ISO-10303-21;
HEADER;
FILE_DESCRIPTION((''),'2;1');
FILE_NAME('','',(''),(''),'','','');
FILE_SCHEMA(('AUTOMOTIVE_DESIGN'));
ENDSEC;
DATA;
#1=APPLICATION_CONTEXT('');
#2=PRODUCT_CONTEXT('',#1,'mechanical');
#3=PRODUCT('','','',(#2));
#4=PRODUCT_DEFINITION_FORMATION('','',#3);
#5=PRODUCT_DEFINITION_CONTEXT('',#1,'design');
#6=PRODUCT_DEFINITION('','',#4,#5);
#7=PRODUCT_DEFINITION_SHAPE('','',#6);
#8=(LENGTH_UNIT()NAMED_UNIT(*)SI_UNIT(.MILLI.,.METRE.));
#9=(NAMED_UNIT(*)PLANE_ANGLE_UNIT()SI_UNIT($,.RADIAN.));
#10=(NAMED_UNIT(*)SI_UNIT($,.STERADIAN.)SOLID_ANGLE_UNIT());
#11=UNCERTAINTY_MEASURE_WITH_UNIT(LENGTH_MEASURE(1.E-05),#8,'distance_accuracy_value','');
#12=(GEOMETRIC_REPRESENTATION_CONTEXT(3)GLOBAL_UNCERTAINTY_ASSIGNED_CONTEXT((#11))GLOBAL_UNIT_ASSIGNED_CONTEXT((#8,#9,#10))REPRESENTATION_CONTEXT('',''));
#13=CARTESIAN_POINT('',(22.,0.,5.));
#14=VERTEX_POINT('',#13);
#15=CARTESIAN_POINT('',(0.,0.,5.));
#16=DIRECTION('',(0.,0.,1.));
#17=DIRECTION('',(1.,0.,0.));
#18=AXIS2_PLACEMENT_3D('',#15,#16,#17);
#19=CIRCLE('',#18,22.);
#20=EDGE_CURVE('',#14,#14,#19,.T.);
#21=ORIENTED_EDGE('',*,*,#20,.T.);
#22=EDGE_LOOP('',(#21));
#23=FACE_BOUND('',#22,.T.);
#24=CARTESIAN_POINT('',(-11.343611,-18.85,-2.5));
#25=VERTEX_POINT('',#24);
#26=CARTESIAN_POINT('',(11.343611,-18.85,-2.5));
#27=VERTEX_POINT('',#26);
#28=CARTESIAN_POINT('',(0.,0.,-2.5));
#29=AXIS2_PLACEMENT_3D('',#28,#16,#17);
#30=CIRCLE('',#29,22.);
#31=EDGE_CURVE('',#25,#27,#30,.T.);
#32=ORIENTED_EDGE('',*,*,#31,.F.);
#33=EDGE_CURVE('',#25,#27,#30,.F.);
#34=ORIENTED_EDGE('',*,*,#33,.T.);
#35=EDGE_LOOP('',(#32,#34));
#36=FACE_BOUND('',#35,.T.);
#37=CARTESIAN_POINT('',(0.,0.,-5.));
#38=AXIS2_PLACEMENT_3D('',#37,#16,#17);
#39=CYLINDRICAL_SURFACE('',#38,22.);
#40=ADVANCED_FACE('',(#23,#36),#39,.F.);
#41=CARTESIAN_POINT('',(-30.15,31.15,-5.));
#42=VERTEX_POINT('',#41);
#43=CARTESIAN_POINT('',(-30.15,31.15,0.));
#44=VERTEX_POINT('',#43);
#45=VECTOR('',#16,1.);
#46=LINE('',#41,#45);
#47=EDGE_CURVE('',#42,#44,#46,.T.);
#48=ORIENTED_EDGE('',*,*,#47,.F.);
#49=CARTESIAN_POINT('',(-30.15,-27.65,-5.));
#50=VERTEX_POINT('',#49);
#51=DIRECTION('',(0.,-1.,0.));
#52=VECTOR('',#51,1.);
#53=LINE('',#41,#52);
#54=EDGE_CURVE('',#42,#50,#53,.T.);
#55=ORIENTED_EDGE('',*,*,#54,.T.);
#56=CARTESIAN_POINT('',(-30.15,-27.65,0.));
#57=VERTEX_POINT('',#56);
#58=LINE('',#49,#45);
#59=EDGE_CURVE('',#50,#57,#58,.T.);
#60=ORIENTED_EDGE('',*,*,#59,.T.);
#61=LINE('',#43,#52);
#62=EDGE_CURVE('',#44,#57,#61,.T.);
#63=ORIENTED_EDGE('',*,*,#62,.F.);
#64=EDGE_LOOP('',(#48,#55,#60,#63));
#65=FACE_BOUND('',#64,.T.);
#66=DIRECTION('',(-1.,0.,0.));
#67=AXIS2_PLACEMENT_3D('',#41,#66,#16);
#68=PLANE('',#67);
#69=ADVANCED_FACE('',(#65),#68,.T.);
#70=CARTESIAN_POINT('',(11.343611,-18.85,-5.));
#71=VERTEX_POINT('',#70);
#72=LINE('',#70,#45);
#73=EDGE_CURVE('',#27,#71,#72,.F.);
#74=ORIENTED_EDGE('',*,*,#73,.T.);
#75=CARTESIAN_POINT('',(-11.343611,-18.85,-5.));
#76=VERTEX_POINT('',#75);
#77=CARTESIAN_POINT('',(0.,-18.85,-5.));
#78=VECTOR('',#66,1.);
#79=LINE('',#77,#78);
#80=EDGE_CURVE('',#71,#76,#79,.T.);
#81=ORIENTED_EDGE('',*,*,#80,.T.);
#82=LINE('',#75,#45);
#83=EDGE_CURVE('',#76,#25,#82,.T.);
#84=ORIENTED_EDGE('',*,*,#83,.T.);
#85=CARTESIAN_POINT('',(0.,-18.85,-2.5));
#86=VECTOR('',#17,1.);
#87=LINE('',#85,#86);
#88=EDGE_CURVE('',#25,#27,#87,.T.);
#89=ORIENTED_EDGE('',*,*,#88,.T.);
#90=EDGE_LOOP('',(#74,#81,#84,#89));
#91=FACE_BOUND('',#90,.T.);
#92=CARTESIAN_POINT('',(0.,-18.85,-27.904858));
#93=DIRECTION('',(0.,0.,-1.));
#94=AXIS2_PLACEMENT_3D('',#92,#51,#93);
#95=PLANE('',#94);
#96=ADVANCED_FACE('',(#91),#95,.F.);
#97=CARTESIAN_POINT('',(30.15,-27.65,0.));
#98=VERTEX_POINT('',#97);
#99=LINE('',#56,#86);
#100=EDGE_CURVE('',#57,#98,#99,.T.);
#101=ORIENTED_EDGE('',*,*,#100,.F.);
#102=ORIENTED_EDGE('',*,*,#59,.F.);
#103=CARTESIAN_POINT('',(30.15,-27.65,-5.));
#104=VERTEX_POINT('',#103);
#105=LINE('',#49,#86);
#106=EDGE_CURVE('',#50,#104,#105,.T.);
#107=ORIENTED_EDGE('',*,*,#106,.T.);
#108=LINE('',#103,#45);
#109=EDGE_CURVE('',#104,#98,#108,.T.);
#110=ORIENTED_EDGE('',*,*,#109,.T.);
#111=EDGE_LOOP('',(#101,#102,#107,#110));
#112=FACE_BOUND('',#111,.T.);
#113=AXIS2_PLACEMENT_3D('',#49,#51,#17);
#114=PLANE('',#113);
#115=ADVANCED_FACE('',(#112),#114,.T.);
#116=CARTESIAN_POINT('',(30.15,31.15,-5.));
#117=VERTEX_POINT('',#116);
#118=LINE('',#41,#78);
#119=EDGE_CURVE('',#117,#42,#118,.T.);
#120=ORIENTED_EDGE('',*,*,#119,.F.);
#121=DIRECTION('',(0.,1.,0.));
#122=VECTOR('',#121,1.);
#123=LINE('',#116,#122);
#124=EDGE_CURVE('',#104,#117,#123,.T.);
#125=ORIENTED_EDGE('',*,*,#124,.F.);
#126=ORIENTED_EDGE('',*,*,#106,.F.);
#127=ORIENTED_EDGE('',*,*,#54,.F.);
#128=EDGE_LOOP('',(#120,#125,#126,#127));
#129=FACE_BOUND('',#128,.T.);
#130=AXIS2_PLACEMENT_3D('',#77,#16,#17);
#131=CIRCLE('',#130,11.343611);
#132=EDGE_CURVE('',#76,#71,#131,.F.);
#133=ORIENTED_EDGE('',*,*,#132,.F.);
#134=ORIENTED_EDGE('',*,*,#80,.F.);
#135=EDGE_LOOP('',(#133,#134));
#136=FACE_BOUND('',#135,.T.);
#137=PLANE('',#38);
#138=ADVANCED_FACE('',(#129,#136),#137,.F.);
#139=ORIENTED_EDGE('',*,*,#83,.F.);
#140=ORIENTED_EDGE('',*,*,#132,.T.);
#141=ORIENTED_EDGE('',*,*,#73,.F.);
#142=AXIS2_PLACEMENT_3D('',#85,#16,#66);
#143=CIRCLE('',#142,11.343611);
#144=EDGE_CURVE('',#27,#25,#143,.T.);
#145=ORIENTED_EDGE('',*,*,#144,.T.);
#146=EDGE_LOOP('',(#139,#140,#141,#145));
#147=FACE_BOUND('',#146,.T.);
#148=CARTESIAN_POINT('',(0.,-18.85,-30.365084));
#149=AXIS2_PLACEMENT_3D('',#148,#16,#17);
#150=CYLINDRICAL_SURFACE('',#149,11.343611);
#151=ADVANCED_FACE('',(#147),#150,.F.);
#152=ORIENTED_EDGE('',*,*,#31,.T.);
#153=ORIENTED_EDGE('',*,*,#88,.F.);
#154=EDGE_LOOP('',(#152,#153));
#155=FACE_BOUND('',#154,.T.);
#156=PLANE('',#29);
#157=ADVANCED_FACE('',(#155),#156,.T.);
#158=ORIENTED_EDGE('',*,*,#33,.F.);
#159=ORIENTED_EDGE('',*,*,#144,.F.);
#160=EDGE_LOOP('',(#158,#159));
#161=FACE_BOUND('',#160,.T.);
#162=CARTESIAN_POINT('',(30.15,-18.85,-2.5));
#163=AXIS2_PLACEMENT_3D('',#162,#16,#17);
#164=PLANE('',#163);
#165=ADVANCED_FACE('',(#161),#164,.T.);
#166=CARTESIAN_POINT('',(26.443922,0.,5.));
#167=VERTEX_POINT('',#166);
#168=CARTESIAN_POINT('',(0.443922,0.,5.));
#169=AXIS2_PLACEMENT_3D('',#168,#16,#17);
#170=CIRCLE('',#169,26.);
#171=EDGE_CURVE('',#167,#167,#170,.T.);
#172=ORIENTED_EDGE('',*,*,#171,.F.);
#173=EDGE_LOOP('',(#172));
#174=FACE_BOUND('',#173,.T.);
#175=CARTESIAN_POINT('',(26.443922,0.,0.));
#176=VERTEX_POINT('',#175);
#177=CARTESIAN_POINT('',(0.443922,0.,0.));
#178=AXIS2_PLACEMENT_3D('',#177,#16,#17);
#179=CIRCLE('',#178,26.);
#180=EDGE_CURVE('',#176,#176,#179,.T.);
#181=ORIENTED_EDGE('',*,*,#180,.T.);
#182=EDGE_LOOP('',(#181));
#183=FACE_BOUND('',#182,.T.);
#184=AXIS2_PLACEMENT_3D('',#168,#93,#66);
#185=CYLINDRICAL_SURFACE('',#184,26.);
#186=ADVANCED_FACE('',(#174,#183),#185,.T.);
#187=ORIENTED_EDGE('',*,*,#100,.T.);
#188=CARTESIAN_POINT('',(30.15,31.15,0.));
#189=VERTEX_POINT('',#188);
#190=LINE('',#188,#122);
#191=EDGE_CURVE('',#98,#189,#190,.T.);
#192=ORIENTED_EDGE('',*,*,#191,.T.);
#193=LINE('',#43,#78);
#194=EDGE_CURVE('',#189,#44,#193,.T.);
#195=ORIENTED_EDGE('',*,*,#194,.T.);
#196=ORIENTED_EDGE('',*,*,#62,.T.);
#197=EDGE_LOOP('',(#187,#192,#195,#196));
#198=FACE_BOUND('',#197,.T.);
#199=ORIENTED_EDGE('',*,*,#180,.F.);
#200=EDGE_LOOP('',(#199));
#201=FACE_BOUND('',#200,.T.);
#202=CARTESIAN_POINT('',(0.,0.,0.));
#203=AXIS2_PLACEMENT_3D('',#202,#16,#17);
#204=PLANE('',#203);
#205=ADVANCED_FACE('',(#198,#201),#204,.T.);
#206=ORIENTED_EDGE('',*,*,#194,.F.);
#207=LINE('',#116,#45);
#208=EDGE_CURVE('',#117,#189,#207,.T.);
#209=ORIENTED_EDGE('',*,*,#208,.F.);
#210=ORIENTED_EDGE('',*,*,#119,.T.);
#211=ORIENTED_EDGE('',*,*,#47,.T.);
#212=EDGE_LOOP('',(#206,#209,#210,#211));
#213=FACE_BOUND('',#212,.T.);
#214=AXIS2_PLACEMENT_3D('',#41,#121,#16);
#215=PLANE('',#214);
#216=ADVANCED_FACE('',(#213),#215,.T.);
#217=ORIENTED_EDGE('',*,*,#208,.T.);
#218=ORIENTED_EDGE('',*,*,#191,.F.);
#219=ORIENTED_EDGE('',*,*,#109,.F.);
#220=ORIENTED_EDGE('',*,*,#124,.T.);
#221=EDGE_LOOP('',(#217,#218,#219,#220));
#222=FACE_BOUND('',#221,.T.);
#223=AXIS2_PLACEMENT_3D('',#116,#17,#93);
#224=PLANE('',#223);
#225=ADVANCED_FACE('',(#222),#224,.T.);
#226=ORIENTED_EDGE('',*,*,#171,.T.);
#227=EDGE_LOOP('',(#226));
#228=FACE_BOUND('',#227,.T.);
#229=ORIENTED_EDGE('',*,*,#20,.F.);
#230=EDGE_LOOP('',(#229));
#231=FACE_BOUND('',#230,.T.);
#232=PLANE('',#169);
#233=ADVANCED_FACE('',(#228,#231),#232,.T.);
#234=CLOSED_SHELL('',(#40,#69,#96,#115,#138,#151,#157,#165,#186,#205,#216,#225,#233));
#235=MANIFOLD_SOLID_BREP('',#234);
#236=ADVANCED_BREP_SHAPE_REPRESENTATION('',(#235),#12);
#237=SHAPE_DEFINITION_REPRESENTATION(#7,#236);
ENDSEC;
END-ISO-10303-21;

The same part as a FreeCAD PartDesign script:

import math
import FreeCAD as App
import Part
import Sketcher

V = App.Vector
Q = App.Units.Quantity


def add_polygon(sketch, points):
    """Adds a closed chain of lines whose ends are joined by coincident constraints."""
    first, n = sketch.GeometryCount, len(points)
    for a, b in zip(points, points[1:] + points[:1]):
        sketch.addGeometry(Part.LineSegment(App.Vector(*a, 0), App.Vector(*b, 0)), False)
    for i in range(n):
        sketch.addConstraint(Sketcher.Constraint("Coincident", first + i, 2, first + (i + 1) % n, 1))

doc = App.newDocument("Part")
params = doc.addObject("Spreadsheet::Sheet", "Params")
for row, (alias, value) in enumerate([
    ("sketch1_diameter", "44 mm"),
    ("sketch1_width", "60.3 mm"),
    ("sketch1_height", "58.8 mm"),
    ("pad1_length", "5 mm"),
    ("sketch2_width", "60.3 mm"),
    ("sketch2_height", "2.5 mm"),
    ("pad2_length", "50 mm"),
    ("sketch3_diameter", "52 mm"),
    ("sketch3_diameter2", "44 mm"),
    ("pad3_length", "5 mm"),
    ("pocket1_length", "2.5 mm"),
    ("sketch5_radius", "22 mm"),
    ("pad4_length", "2.5 mm"),
], start=1):
    params.set(f"A{row}", alias)
    params.set(f"B{row}", "=" + value)
    params.setAlias(f"B{row}", alias)

body = doc.addObject("PartDesign::Body", "Body")

sketch1 = doc.addObject("Sketcher::SketchObject", "Sketch")
body.addObject(sketch1)
sketch1.AttachmentSupport = (doc.XY_Plane, [""])
sketch1.MapMode = "FlatFace"
add_polygon(sketch1, [(-30.15, 31.15), (-30.15, -27.65), (30.15, -27.65), (30.15, 31.15)])
sketch1.addGeometry(Part.Circle(V(0, 0, 0), V(0, 0, 1), 22), False)
sketch1.addConstraint(Sketcher.Constraint("Vertical", 0))
sketch1.addConstraint(Sketcher.Constraint("Horizontal", 1))
sketch1.addConstraint(Sketcher.Constraint("Vertical", 2))
sketch1.addConstraint(Sketcher.Constraint("Horizontal", 3))
sketch1.addConstraint(Sketcher.Constraint("Coincident", 4, 3, -1, 1))
sketch1.addConstraint(Sketcher.Constraint("Diameter", 4, Q("44 mm")))
sketch1.addConstraint(Sketcher.Constraint("DistanceX", 1, 1, 1, 2, Q("60.3 mm")))
sketch1.addConstraint(Sketcher.Constraint("DistanceY", 0, 2, 0, 1, Q("58.8 mm")))
sketch1.addConstraint(Sketcher.Constraint("DistanceX", 0, 2, -1, 1, Q("30.15 mm")))
sketch1.addConstraint(Sketcher.Constraint("DistanceY", 0, 2, -1, 1, Q("27.65 mm")))
sketch1.setExpression("Constraints[9]", "Params.sketch1_diameter")
sketch1.setExpression("Constraints[10]", "Params.sketch1_width")
sketch1.setExpression("Constraints[11]", "Params.sketch1_height")
pad1 = doc.addObject("PartDesign::Pad", "Pad")
body.addObject(pad1)
pad1.Profile = sketch1
pad1.setExpression("Length", "Params.pad1_length")
pad1.Reversed = True

sketch2 = doc.addObject("Sketcher::SketchObject", "Sketch001")
body.addObject(sketch2)
sketch2.AttachmentSupport = (doc.XZ_Plane, [""])
sketch2.MapMode = "FlatFace"
sketch2.AttachmentOffset = App.Placement(V(0, 0, -31.15), App.Rotation())
add_polygon(sketch2, [(-30.15, -5), (-30.15, -2.5), (30.15, -2.5), (30.15, -5)])
sketch2.addConstraint(Sketcher.Constraint("Vertical", 0))
sketch2.addConstraint(Sketcher.Constraint("Horizontal", 1))
sketch2.addConstraint(Sketcher.Constraint("Vertical", 2))
sketch2.addConstraint(Sketcher.Constraint("Horizontal", 3))
sketch2.addConstraint(Sketcher.Constraint("DistanceX", 1, 1, 1, 2, Q("60.3 mm")))
sketch2.addConstraint(Sketcher.Constraint("DistanceY", 0, 1, 0, 2, Q("2.5 mm")))
sketch2.addConstraint(Sketcher.Constraint("DistanceY", 2, 2, -1, 1, Q("5 mm")))
sketch2.addConstraint(Sketcher.Constraint("DistanceX", 0, 2, -1, 1, Q("30.15 mm")))
sketch2.setExpression("Constraints[8]", "Params.sketch2_width")
sketch2.setExpression("Constraints[9]", "Params.sketch2_height")
pad2 = doc.addObject("PartDesign::Pad", "Pad001")
body.addObject(pad2)
pad2.Profile = sketch2
pad2.setExpression("Length", "Params.pad2_length")

sketch3 = doc.addObject("Sketcher::SketchObject", "Sketch002")
body.addObject(sketch3)
sketch3.AttachmentSupport = (doc.XY_Plane, [""])
sketch3.MapMode = "FlatFace"
sketch3.addGeometry(Part.Circle(V(0.443922, 0, 0), V(0, 0, 1), 26), False)
sketch3.addGeometry(Part.Circle(V(0, 0, 0), V(0, 0, 1), 22), False)
sketch3.addConstraint(Sketcher.Constraint("Coincident", 1, 3, -1, 1))
sketch3.addConstraint(Sketcher.Constraint("PointOnObject", 0, 3, -1))
sketch3.addConstraint(Sketcher.Constraint("Diameter", 0, Q("52 mm")))
sketch3.addConstraint(Sketcher.Constraint("Diameter", 1, Q("44 mm")))
sketch3.addConstraint(Sketcher.Constraint("DistanceX", -1, 1, 0, 3, Q("0.443922 mm")))
sketch3.setExpression("Constraints[2]", "Params.sketch3_diameter")
sketch3.setExpression("Constraints[3]", "Params.sketch3_diameter2")
pad3 = doc.addObject("PartDesign::Pad", "Pad002")
body.addObject(pad3)
pad3.Profile = sketch3
pad3.setExpression("Length", "Params.pad3_length")

sketch4 = doc.addObject("Sketcher::SketchObject", "Sketch003")
body.addObject(sketch4)
sketch4.AttachmentSupport = (doc.XY_Plane, [""])
sketch4.MapMode = "FlatFace"
sketch4.AttachmentOffset = App.Placement(V(0, 0, -2.5), App.Rotation())
sketch4.addGeometry(Part.LineSegment(V(-11.343611, -18.85, 0), V(11.343611, -18.85, 0)), False)
sketch4.addGeometry(Part.ArcOfCircle(Part.Circle(V(0, -18.85, 0), V(0, 0, 1), 11.343611), math.radians(0), math.radians(180)), False)
sketch4.addConstraint(Sketcher.Constraint("Coincident", 0, 1, 1, 2))
sketch4.addConstraint(Sketcher.Constraint("Coincident", 1, 1, 0, 2))
sketch4.addConstraint(Sketcher.Constraint("Horizontal", 0))
sketch4.addConstraint(Sketcher.Constraint("PointOnObject", 1, 3, -2))
sketch4.addConstraint(Sketcher.Constraint("Horizontal", 1, 3, 0, 1))
sketch4.addConstraint(Sketcher.Constraint("DistanceY", 1, 3, -1, 1, Q("18.85 mm")))
sketch4.addConstraint(Sketcher.Constraint("Radius", 1, Q("11.343611 mm")))
pocket1 = doc.addObject("PartDesign::Pocket", "Pocket")
body.addObject(pocket1)
pocket1.Profile = sketch4
pocket1.setExpression("Length", "Params.pocket1_length")

sketch5 = doc.addObject("Sketcher::SketchObject", "Sketch004")
body.addObject(sketch5)
sketch5.AttachmentSupport = (doc.XY_Plane, [""])
sketch5.MapMode = "FlatFace"
sketch5.AttachmentOffset = App.Placement(V(0, 0, -2.5), App.Rotation())
sketch5.addGeometry(Part.LineSegment(V(11.343611, -18.85, 0), V(-11.343611, -18.85, 0)), False)
sketch5.addGeometry(Part.ArcOfCircle(Part.Circle(V(0, 0, 0), V(0, 0, 1), 22), math.radians(-121.038816), math.radians(-58.961184)), False)
sketch5.addConstraint(Sketcher.Constraint("Coincident", 0, 1, 1, 2))
sketch5.addConstraint(Sketcher.Constraint("Coincident", 1, 1, 0, 2))
sketch5.addConstraint(Sketcher.Constraint("Horizontal", 0))
sketch5.addConstraint(Sketcher.Constraint("Coincident", 1, 3, -1, 1))
sketch5.addConstraint(Sketcher.Constraint("Radius", 1, Q("22 mm")))
sketch5.addConstraint(Sketcher.Constraint("DistanceY", 0, 1, -1, 1, Q("18.85 mm")))
sketch5.setExpression("Constraints[4]", "Params.sketch5_radius")
pad4 = doc.addObject("PartDesign::Pad", "Pad003")
body.addObject(pad4)
pad4.Profile = sketch5
pad4.setExpression("Length", "Params.pad4_length")
pad4.Reversed = True

doc.recompute()
